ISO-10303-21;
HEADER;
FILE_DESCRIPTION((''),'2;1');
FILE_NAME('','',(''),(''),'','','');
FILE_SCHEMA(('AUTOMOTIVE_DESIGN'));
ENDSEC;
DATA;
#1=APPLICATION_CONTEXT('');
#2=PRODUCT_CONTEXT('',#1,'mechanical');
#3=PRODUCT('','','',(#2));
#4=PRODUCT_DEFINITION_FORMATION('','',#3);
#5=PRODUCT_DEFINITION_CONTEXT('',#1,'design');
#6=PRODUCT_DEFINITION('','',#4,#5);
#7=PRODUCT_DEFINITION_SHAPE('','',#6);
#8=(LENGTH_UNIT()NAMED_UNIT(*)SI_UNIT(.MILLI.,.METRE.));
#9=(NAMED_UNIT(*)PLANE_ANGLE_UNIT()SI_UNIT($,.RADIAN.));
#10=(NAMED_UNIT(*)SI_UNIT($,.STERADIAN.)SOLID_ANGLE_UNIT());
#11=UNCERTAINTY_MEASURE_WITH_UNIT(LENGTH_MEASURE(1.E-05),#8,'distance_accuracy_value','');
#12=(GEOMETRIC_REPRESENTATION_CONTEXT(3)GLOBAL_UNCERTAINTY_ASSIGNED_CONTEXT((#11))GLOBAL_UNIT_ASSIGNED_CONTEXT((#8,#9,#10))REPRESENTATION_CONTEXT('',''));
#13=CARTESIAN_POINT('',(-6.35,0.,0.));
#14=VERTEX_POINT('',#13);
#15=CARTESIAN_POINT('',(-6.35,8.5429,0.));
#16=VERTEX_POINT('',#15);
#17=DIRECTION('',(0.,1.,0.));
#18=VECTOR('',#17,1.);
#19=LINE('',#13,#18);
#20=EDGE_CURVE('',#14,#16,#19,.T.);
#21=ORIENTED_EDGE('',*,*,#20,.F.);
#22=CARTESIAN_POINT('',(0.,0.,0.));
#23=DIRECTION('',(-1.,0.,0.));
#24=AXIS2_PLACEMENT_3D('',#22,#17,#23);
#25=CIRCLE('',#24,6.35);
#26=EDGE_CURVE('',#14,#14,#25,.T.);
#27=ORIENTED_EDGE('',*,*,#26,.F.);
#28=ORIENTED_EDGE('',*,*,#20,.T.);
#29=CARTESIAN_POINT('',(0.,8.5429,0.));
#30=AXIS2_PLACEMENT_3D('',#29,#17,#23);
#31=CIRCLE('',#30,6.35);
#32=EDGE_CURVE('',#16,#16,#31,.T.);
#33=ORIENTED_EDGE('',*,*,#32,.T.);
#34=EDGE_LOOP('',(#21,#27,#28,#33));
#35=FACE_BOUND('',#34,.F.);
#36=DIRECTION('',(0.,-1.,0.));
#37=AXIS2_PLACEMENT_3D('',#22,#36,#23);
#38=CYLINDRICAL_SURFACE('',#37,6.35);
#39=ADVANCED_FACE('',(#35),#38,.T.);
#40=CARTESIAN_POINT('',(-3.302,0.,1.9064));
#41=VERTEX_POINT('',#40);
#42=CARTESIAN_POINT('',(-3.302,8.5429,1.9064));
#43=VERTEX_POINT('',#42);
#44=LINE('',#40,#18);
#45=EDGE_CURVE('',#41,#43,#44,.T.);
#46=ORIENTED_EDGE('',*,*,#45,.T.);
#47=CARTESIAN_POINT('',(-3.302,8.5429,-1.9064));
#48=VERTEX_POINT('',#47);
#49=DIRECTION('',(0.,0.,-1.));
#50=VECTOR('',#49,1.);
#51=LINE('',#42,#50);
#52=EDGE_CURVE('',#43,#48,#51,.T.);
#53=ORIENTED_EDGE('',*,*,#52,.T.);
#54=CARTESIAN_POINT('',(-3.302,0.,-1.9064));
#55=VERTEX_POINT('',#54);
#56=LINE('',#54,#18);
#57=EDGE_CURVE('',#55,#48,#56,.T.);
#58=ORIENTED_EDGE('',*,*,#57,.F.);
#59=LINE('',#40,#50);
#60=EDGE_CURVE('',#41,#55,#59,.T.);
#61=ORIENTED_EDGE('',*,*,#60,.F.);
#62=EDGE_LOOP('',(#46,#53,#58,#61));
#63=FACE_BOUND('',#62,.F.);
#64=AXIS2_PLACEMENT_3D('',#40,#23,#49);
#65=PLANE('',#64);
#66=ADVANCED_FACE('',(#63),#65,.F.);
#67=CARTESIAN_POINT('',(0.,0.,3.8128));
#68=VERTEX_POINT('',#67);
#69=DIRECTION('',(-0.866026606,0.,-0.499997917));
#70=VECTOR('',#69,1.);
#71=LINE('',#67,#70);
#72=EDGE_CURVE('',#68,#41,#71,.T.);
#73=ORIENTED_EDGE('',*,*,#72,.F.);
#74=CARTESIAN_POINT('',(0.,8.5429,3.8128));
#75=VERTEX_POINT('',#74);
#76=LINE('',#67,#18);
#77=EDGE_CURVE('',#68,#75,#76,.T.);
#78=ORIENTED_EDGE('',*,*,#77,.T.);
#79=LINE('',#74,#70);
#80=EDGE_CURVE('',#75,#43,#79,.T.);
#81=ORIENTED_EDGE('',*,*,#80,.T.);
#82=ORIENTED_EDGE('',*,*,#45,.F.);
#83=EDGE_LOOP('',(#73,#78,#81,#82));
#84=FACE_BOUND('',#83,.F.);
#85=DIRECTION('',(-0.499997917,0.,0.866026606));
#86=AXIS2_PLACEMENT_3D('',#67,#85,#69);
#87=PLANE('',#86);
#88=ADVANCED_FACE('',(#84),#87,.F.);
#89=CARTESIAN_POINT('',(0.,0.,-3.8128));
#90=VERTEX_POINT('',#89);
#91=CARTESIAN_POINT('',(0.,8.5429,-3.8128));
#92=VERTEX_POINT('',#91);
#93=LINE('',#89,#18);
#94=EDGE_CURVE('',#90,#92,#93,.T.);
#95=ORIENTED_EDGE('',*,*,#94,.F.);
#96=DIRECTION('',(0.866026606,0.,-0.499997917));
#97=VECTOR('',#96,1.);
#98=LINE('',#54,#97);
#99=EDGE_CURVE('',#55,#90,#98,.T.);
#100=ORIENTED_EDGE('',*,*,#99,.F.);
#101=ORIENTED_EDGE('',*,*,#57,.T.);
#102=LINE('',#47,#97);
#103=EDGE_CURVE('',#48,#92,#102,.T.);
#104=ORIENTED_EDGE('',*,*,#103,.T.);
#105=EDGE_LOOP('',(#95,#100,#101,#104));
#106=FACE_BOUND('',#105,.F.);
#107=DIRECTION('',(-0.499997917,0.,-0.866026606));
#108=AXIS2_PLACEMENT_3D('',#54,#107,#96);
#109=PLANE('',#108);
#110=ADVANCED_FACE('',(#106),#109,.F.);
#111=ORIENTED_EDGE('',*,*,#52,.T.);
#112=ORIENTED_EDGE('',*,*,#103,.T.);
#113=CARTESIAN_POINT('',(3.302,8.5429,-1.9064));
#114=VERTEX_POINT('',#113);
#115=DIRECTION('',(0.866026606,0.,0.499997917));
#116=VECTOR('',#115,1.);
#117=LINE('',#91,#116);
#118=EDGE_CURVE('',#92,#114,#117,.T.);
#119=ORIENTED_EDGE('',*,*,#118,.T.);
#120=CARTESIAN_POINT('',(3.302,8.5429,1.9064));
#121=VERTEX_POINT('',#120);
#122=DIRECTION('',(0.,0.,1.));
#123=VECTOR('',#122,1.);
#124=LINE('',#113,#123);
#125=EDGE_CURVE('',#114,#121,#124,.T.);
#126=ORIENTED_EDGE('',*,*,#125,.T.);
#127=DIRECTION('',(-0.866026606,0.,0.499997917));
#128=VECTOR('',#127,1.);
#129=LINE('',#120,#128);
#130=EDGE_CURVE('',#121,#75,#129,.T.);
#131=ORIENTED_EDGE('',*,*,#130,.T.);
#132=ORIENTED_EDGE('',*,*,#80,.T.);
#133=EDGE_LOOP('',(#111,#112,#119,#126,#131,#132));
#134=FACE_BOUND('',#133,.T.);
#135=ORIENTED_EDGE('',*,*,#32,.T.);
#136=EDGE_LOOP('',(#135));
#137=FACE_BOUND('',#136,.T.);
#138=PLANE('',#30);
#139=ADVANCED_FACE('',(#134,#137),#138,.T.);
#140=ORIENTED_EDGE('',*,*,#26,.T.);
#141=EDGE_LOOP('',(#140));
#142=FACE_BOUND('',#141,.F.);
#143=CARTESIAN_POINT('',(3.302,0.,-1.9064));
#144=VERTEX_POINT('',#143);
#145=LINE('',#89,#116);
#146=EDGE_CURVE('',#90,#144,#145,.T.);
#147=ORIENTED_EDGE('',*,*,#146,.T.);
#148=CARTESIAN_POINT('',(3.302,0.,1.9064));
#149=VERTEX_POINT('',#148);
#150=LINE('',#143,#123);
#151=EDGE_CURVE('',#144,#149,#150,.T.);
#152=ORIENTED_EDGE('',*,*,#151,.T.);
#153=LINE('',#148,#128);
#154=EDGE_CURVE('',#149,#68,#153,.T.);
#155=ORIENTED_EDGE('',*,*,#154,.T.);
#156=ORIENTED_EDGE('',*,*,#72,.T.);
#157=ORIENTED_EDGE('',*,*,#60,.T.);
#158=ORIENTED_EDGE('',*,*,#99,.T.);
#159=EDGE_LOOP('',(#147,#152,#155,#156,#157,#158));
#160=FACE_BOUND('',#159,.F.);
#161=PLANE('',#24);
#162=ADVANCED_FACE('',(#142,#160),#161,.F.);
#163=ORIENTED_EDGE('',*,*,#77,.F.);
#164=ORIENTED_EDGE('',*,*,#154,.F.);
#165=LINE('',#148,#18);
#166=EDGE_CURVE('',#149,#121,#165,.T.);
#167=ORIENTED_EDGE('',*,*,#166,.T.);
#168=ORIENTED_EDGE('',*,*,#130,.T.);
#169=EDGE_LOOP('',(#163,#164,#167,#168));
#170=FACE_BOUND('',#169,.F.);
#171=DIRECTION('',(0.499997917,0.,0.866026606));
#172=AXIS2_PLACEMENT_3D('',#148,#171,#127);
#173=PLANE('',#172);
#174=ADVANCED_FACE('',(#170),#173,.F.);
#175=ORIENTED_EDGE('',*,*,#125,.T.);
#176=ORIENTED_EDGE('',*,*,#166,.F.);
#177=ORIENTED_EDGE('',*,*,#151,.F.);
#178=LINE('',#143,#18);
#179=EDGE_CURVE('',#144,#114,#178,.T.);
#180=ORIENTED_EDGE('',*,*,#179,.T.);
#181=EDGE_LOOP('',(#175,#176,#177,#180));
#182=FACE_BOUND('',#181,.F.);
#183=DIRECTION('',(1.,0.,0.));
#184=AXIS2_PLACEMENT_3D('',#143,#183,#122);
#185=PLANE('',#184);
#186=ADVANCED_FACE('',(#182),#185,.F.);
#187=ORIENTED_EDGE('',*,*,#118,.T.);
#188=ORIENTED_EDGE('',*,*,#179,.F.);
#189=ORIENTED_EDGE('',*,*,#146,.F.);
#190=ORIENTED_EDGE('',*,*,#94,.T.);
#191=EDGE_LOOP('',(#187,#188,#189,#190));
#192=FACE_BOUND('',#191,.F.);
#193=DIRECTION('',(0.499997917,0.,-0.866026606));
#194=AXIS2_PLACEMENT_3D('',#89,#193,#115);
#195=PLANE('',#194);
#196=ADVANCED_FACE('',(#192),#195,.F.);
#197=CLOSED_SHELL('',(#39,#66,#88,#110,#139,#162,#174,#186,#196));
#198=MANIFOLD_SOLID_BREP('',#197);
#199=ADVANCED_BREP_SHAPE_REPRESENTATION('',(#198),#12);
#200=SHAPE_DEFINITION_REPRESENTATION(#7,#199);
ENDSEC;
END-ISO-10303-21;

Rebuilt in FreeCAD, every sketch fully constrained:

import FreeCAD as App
import Part
import Sketcher
Q = App.Units.Quantity


def add_polygon(sketch, points):
    """Adds a closed chain of lines whose ends are joined by coincident constraints."""
    first, n = sketch.GeometryCount, len(points)
    for a, b in zip(points, points[1:] + points[:1]):
        sketch.addGeometry(Part.LineSegment(App.Vector(*a, 0), App.Vector(*b, 0)), False)
    for i in range(n):
        sketch.addConstraint(Sketcher.Constraint("Coincident", first + i, 2, first + (i + 1) % n, 1))

doc = App.newDocument("Part")
body = doc.addObject("PartDesign::Body", "Body")

sketch1 = body.newObject("Sketcher::SketchObject", "Sketch")
sketch1.AttachmentSupport = (doc.getObject("XZ_Plane"), [""])
sketch1.MapMode = "FlatFace"
sketch1.addGeometry(Part.Circle(App.Vector(0, 0, 0), App.Vector(0, 0, 1), 6.3), False)
add_polygon(sketch1, [(3.3, 1.9), (0, 3.8), (-3.3, 1.9), (-3.3, -1.9), (0, -3.8), (3.3, -1.9)])
sketch1.addConstraint([
    Sketcher.Constraint("Vertical", 3),
    Sketcher.Constraint("Vertical", 6),
    Sketcher.Constraint("Coincident", 0, 3, -1, 1),
    Sketcher.Constraint("Symmetric", 1, 2, 4, 2, -1, 1),
    Sketcher.Constraint("Symmetric", 2, 2, 5, 2, -1, 1),
    Sketcher.Constraint("PointOnObject", 1, 2, -2),
    Sketcher.Constraint("Parallel", 1, 4),
    Sketcher.Constraint("Horizontal", 3, 2, 5, 2),
    Sketcher.Constraint("Diameter", 0, Q("0.5 in")),
    Sketcher.Constraint("DistanceX", 3, 2, 5, 2, Q("0.26 in")),
    Sketcher.Constraint("Angle", 1, Q("150.0001 deg")),
    Sketcher.Constraint("DistanceY", 3, 2, 3, 1, Q("0.1501 in")),
])
pad1 = body.newObject("PartDesign::Pad", "Pad")
pad1.Profile = sketch1
pad1.Length = 8.5429
pad1.Reversed = True

doc.recompute()
